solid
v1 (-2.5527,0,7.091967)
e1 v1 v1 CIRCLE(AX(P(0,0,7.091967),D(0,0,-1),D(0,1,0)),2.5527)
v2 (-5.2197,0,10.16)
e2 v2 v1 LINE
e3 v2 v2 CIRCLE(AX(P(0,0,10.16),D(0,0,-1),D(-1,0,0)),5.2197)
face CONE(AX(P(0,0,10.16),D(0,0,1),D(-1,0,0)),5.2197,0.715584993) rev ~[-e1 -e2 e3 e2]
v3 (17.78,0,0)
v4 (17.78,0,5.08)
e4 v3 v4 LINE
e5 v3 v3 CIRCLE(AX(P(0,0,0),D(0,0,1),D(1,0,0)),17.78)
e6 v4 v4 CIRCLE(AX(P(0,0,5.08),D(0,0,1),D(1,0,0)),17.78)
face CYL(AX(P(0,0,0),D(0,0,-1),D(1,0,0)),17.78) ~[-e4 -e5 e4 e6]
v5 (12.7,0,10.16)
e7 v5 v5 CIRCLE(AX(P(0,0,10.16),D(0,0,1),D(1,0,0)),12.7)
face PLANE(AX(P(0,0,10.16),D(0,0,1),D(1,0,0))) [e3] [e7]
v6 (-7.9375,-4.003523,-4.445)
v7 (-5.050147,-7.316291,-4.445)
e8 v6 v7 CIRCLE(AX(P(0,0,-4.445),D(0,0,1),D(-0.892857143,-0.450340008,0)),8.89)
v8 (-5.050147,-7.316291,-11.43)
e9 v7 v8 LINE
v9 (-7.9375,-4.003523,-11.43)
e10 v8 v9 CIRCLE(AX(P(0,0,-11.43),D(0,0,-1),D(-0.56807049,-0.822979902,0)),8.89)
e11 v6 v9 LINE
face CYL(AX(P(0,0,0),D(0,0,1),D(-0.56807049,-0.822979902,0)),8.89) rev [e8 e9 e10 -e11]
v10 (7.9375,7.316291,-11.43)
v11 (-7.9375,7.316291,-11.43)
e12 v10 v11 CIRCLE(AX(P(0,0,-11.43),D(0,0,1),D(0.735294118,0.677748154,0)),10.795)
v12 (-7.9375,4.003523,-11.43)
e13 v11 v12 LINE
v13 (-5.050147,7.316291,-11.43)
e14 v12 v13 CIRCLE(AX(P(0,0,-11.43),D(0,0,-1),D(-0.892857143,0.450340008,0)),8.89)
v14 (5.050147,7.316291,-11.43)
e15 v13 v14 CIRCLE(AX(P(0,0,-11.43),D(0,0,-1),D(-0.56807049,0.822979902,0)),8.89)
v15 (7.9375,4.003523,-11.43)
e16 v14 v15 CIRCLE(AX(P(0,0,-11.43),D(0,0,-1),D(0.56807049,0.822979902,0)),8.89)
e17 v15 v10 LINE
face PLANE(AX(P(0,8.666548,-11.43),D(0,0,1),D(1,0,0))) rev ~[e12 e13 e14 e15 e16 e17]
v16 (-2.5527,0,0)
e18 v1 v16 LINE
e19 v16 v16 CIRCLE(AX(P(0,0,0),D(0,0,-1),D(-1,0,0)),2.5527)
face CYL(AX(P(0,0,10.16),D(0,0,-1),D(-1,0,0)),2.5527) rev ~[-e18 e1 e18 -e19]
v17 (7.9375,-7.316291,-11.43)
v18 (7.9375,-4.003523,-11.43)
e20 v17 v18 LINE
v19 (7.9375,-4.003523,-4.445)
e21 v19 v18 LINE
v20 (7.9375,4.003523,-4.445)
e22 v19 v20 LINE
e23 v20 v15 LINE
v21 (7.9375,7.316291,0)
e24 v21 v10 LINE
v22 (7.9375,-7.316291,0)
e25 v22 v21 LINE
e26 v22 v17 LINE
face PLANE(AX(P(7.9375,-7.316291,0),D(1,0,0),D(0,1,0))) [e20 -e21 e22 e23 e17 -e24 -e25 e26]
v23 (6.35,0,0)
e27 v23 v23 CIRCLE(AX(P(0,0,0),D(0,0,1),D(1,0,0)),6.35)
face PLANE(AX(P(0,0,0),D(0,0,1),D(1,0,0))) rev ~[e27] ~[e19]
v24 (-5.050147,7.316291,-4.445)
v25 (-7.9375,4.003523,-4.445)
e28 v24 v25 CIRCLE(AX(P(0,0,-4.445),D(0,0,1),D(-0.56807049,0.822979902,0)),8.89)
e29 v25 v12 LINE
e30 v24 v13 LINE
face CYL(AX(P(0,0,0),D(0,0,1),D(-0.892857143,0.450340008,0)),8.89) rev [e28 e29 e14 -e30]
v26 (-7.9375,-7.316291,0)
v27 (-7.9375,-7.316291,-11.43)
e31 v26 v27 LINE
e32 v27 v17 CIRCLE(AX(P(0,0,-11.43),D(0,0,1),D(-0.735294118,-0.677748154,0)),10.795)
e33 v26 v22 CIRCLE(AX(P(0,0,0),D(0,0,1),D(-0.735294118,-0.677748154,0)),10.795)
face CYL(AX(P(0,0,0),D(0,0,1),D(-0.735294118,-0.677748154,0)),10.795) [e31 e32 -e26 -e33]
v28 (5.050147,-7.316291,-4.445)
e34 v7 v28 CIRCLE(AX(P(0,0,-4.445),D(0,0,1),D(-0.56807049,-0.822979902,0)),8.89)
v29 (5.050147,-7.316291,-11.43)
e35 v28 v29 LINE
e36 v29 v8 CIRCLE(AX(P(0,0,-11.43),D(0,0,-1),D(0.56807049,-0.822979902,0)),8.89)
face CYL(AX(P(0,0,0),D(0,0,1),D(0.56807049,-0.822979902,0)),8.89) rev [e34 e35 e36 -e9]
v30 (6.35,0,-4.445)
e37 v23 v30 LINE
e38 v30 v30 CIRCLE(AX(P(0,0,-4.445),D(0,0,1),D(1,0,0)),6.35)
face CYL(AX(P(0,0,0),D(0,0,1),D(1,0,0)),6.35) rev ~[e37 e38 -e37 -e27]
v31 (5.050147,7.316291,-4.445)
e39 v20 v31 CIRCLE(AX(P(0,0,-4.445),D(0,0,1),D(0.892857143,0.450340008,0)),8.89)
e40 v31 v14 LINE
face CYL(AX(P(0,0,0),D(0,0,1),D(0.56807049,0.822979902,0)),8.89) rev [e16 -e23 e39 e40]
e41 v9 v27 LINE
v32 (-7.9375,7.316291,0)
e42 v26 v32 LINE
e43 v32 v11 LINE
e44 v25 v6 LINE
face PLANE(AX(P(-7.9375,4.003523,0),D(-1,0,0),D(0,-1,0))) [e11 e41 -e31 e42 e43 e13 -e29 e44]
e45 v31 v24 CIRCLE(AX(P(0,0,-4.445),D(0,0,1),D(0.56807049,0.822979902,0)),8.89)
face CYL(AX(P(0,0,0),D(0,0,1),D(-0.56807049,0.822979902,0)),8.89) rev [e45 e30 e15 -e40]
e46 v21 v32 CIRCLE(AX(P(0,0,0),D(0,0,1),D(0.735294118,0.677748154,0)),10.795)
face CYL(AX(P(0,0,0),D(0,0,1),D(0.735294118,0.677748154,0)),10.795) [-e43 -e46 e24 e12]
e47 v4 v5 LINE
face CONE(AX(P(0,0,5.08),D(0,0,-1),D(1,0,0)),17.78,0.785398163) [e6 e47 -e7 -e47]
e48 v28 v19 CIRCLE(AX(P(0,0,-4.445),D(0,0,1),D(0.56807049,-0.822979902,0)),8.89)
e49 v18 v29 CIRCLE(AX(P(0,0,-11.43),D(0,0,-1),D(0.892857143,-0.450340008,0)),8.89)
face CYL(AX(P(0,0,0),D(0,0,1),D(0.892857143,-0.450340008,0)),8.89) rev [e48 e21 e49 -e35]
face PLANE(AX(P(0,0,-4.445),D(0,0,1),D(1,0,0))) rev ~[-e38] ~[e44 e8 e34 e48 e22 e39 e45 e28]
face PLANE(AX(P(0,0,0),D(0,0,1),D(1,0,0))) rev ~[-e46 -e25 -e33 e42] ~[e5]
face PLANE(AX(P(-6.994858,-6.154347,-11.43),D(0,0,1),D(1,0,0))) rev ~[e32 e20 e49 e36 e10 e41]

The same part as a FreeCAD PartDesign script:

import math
import FreeCAD as App
import Part
import Sketcher
Q = App.Units.Quantity


def edges_at(feature, points):
    """Names of the edges that pass closest to the given points."""
    edges = feature.Shape.Edges
    near = lambda p: min(range(len(edges)), key=lambda i: edges[i].distToShape(Part.Vertex(*p))[0])
    return sorted({f"Edge{near(p) + 1}" for p in points})

doc = App.newDocument("Part")
body = doc.addObject("PartDesign::Body", "Body")

sketch1 = body.newObject("Sketcher::SketchObject", "Sketch")
sketch1.AttachmentSupport = (doc.getObject("XY_Plane"), [""])
sketch1.MapMode = "FlatFace"
sketch1.addGeometry(Part.Circle(App.Vector(0, 0, 0), App.Vector(0, 0, 1), 18), False)
sketch1.addConstraint([
    Sketcher.Constraint("Coincident", 0, 3, -1, 1),
    Sketcher.Constraint("Diameter", 0, Q("1.4 in")),
])
pad1 = body.newObject("PartDesign::Pad", "Pad")
pad1.Profile = sketch1
pad1.Length = Q("0.4 in")

sketch2 = body.newObject("Sketcher::SketchObject", "Sketch001")
sketch2.AttachmentSupport = (doc.getObject("XY_Plane"), [""])
sketch2.MapMode = "FlatFace"
sketch2.AttachmentOffset = App.Placement(App.Vector(0, 0, 0.4 * 25.4), App.Rotation())
sketch2.addGeometry(Part.Circle(App.Vector(0, 0, 0), App.Vector(0, 0, 1), 2.6), False)
sketch2.addConstraint([
    Sketcher.Constraint("Coincident", 0, 3, -1, 1),
    Sketcher.Constraint("Diameter", 0, Q("0.201 in")),
])
doc.recompute()
hole = body.newObject("PartDesign::Hole", "Hole")
hole.Profile = sketch2
hole.ThreadType = "None"
hole.Diameter = Q("0.201 in")
hole.DepthType = "ThroughAll"
hole.HoleCutType = "Countersink"
hole.HoleCutDiameter = Q("0.411 in")
hole.HoleCutCountersinkAngle = 82

sketch3 = body.newObject("Sketcher::SketchObject", "Sketch002")
sketch3.AttachmentSupport = (doc.getObject("XY_Plane"), [""])
sketch3.MapMode = "FlatFace"
sketch3.addGeometry([
    Part.ArcOfCircle(Part.Circle(App.Vector(0, 0, 0), App.Vector(0, 0, 1), 10.8), math.radians(43), math.radians(137)),
    Part.LineSegment(App.Vector(-7.9, 7.3, 0), App.Vector(-7.9, 4, 0)),
    Part.ArcOfCircle(Part.Circle(App.Vector(0, 0, 0), App.Vector(0, 0, 1), 8.9), math.radians(125), math.radians(153)),
    Part.ArcOfCircle(Part.Circle(App.Vector(0, 0, 0), App.Vector(0, 0, 1), 8.9), math.radians(55), math.radians(125)),
    Part.ArcOfCircle(Part.Circle(App.Vector(0, 0, 0), App.Vector(0, 0, 1), 8.9), math.radians(27), math.radians(55)),
    Part.LineSegment(App.Vector(7.9, 4, 0), App.Vector(7.9, 7.3, 0)),
    Part.LineSegment(App.Vector(-7.9, -4, 0), App.Vector(-7.9, -7.3, 0)),
    Part.ArcOfCircle(Part.Circle(App.Vector(0, 0, 0), App.Vector(0, 0, 1), 10.8), math.radians(-137), math.radians(-43)),
    Part.LineSegment(App.Vector(7.9, -7.3, 0), App.Vector(7.9, -4, 0)),
    Part.ArcOfCircle(Part.Circle(App.Vector(0, 0, 0), App.Vector(0, 0, 1), 8.9), math.radians(-55), math.radians(-27)),
    Part.ArcOfCircle(Part.Circle(App.Vector(0, 0, 0), App.Vector(0, 0, 1), 8.9), math.radians(-125), math.radians(-55)),
    Part.ArcOfCircle(Part.Circle(App.Vector(0, 0, 0), App.Vector(0, 0, 1), 8.9), math.radians(-153), math.radians(-125)),
], False)
sketch3.addConstraint([
    Sketcher.Constraint("Coincident", 0, 2, 1, 1),
    Sketcher.Constraint("Coincident", 1, 2, 2, 2),
    Sketcher.Constraint("Tangent", 2, 1, 3, 2),
    Sketcher.Constraint("Tangent", 3, 1, 4, 2),
    Sketcher.Constraint("Coincident", 4, 1, 5, 1),
    Sketcher.Constraint("Coincident", 5, 2, 0, 1),
    Sketcher.Constraint("Coincident", 6, 2, 7, 1),
    Sketcher.Constraint("Coincident", 7, 2, 8, 1),
    Sketcher.Constraint("Coincident", 8, 2, 9, 2),
    Sketcher.Constraint("Tangent", 9, 1, 10, 2),
    Sketcher.Constraint("Tangent", 10, 1, 11, 2),
    Sketcher.Constraint("Coincident", 11, 1, 6, 1),
    Sketcher.Constraint("Vertical", 1),
    Sketcher.Constraint("Vertical", 5),
    Sketcher.Constraint("Vertical", 6),
    Sketcher.Constraint("Vertical", 8),
    Sketcher.Constraint("Coincident", 0, 3, -1, 1),
    Sketcher.Constraint("Coincident", 2, 3, -1, 1),
    Sketcher.Constraint("Coincident", 4, 3, -1, 1),
    Sketcher.Constraint("Coincident", 7, 3, -1, 1),
    Sketcher.Constraint("Coincident", 9, 3, -1, 1),
    Sketcher.Constraint("Coincident", 11, 3, -1, 1),
    Sketcher.Constraint("Equal", 0, 7),
    Sketcher.Constraint("Equal", 4, 9),
    Sketcher.Constraint("Horizontal", 0, 2, 2, 1),
    Sketcher.Constraint("Horizontal", 2, 1, 3, 1),
    Sketcher.Constraint("Horizontal", 1, 2, 4, 1),
    Sketcher.Constraint("Horizontal", 6, 2, 7, 2),
    Sketcher.Constraint("Horizontal", 7, 2, 9, 1),
    Sketcher.Constraint("Horizontal", 9, 1, 10, 1),
    Sketcher.Constraint("Vertical", 1, 2, 6, 2),
    Sketcher.Constraint("Radius", 2, Q("0.35 in")),
    Sketcher.Constraint("Radius", 0, Q("0.425 in")),
    Sketcher.Constraint("DistanceX", 0, 2, -1, 1, Q("0.3125 in")),
])
pad2 = body.newObject("PartDesign::Pad", "Pad001")
pad2.Profile = sketch3
pad2.Length = Q("0.45 in")
pad2.Reversed = True

sketch4 = body.newObject("Sketcher::SketchObject", "Sketch003")
sketch4.AttachmentSupport = (doc.getObject("XY_Plane"), [""])
sketch4.MapMode = "FlatFace"
sketch4.addGeometry([
    Part.ArcOfCircle(Part.Circle(App.Vector(0, 0, 0), App.Vector(0, 0, 1), 8.9), math.radians(27), math.radians(55)),
    Part.ArcOfCircle(Part.Circle(App.Vector(0, 0, 0), App.Vector(0, 0, 1), 8.9), math.radians(55), math.radians(125)),
    Part.ArcOfCircle(Part.Circle(App.Vector(0, 0, 0), App.Vector(0, 0, 1), 8.9), math.radians(125), math.radians(153)),
    Part.LineSegment(App.Vector(-7.9, 4, 0), App.Vector(-7.9, -4, 0)),
    Part.ArcOfCircle(Part.Circle(App.Vector(0, 0, 0), App.Vector(0, 0, 1), 8.9), math.radians(-153), math.radians(-125)),
    Part.ArcOfCircle(Part.Circle(App.Vector(0, 0, 0), App.Vector(0, 0, 1), 8.9), math.radians(-125), math.radians(-55)),
    Part.ArcOfCircle(Part.Circle(App.Vector(0, 0, 0), App.Vector(0, 0, 1), 8.9), math.radians(-55), math.radians(-27)),
    Part.LineSegment(App.Vector(7.9, -4, 0), App.Vector(7.9, 4, 0)),
    Part.Circle(App.Vector(0, 0, 0), App.Vector(0, 0, 1), 6.3),
], False)
sketch4.addConstraint([
    Sketcher.Constraint("Tangent", 0, 2, 1, 1),
    Sketcher.Constraint("Tangent", 1, 2, 2, 1),
    Sketcher.Constraint("Coincident", 2, 2, 3, 1),
    Sketcher.Constraint("Coincident", 3, 2, 4, 1),
    Sketcher.Constraint("Tangent", 4, 2, 5, 1),
    Sketcher.Constraint("Tangent", 5, 2, 6, 1),
    Sketcher.Constraint("Coincident", 6, 2, 7, 1),
    Sketcher.Constraint("Coincident", 7, 2, 0, 1),
    Sketcher.Constraint("Vertical", 3),
    Sketcher.Constraint("Vertical", 7),
    Sketcher.Constraint("Coincident", 0, 3, -1, 1),
    Sketcher.Constraint("Coincident", 2, 3, -1, 1),
    Sketcher.Constraint("Coincident", 4, 3, -1, 1),
    Sketcher.Constraint("Coincident", 6, 3, -1, 1),
    Sketcher.Constraint("Coincident", 8, 3, -1, 1),
    Sketcher.Constraint("Equal", 2, 4),
    Sketcher.Constraint("Horizontal", 0, 2, 1, 2),
    Sketcher.Constraint("Horizontal", 4, 2, 5, 2),
    Sketcher.Constraint("Horizontal", 3, 2, 6, 2),
    Sketcher.Constraint("Vertical", 1, 2, 4, 2),
    Sketcher.Constraint("Diameter", 8, Q("0.5 in")),
    Sketcher.Constraint("Radius", 0, Q("0.35 in")),
    Sketcher.Constraint("DistanceX", 2, 2, -1, 1, Q("0.3125 in")),
    Sketcher.Constraint("DistanceY", -1, 1, 0, 2, 7.316291),
])
pad3 = body.newObject("PartDesign::Pad", "Pad002")
pad3.Profile = sketch4
pad3.Length = Q("0.175 in")
pad3.Reversed = True
doc.recompute()

chamfer = body.newObject("PartDesign::Chamfer", "Chamfer")
chamfer.Base = (pad3, edges_at(pad3, [(-17.78, 0, 10.16)]))
chamfer.Size = Q("0.2 in")

doc.recompute()
